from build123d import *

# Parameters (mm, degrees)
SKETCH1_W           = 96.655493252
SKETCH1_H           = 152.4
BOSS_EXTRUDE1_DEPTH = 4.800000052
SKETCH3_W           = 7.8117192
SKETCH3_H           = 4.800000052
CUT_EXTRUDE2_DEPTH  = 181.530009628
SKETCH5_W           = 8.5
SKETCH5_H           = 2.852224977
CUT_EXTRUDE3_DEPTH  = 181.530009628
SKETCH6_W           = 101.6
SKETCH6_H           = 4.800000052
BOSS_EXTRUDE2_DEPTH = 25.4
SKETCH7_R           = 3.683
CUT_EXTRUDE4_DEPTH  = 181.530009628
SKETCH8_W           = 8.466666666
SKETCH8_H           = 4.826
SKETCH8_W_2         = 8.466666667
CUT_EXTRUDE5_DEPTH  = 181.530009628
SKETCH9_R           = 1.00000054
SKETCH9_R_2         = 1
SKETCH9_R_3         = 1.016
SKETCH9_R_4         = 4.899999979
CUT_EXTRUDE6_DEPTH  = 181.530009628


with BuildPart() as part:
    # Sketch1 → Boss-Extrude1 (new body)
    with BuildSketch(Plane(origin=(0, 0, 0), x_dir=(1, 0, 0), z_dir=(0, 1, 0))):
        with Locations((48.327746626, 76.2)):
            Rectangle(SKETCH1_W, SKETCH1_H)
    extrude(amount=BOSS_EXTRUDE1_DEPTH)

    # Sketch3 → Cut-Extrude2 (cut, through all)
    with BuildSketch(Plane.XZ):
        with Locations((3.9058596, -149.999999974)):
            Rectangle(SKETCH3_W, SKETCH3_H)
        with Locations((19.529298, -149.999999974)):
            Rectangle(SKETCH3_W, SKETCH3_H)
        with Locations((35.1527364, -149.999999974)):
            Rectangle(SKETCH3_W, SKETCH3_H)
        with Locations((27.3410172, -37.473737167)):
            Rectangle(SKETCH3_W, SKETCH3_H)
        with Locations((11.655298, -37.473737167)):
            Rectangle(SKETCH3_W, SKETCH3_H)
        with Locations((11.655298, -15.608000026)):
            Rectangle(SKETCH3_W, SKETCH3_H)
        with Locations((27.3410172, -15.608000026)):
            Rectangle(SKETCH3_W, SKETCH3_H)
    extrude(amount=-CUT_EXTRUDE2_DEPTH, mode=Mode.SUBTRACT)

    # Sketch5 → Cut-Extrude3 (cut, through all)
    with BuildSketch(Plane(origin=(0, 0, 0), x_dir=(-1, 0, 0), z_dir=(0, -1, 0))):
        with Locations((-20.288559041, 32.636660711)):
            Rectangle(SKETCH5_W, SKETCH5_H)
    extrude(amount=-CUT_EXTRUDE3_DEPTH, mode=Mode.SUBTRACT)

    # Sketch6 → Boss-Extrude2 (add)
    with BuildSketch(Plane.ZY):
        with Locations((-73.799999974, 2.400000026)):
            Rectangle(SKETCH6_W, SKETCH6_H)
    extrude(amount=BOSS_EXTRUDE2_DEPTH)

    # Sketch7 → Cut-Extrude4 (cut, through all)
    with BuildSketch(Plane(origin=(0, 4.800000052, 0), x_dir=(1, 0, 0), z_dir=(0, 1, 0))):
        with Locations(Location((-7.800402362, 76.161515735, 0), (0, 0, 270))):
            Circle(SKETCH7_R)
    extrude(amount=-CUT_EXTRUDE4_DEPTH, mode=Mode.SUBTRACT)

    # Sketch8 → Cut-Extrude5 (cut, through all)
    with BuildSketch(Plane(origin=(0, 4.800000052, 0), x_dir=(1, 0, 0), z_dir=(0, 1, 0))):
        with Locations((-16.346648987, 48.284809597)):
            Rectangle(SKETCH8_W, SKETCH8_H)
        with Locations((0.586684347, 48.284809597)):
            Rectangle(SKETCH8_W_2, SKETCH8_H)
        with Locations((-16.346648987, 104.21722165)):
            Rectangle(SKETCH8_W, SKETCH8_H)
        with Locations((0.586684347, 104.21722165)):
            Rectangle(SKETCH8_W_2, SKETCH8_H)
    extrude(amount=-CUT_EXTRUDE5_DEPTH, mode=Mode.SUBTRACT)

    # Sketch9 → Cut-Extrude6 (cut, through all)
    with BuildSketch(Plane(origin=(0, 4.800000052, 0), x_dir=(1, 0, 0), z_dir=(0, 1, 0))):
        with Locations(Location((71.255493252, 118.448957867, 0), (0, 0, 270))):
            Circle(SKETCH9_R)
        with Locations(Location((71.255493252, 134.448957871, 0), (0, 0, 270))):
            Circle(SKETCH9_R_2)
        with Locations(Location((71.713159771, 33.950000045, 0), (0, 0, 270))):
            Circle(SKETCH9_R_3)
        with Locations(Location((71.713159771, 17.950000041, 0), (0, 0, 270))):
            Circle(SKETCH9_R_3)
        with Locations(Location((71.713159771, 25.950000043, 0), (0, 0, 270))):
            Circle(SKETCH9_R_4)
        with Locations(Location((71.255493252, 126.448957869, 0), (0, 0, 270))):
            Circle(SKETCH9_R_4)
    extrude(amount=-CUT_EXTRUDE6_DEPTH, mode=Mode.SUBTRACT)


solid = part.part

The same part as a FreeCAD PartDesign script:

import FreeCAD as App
import Part
import Sketcher
from FreeCAD import Vector
Q = App.Units.Quantity

doc = App.newDocument("Part")
body = doc.addObject("PartDesign::Body", "Body")

sketch1 = body.newObject("Sketcher::SketchObject", "Sketch")
sketch1.AttachmentSupport = (doc.getObject("XZ_Plane"), [""])
sketch1.MapMode = "FlatFace"
sketch1.addGeometry([
    Part.LineSegment(Vector(0, -152.4, 0), Vector(0, 0, 0)),
    Part.LineSegment(Vector(0, 0, 0), Vector(96.655493, 0, 0)),
    Part.LineSegment(Vector(96.655493, 0, 0), Vector(96.655493, -152.4, 0)),
    Part.LineSegment(Vector(96.655493, -152.4, 0), Vector(0, -152.4, 0)),
], False)
sketch1.addConstraint([
    Sketcher.Constraint("Coincident", 0, 2, 1, 1),
    Sketcher.Constraint("Coincident", 1, 2, 2, 1),
    Sketcher.Constraint("Coincident", 2, 2, 3, 1),
    Sketcher.Constraint("Coincident", 3, 2, 0, 1),
    Sketcher.Constraint("Vertical", 0),
    Sketcher.Constraint("Horizontal", 1),
    Sketcher.Constraint("Vertical", 2),
    Sketcher.Constraint("Horizontal", 3),
    Sketcher.Constraint("Coincident", 0, 2, -1, 1),
    Sketcher.Constraint("DistanceY", 0, 1, 0, 2, Q("6 in")),
    Sketcher.Constraint("DistanceX", 1, 1, 1, 2, Q("96.655493 mm")),
])
pad1 = body.newObject("PartDesign::Pad", "Pad")
pad1.Profile = sketch1
pad1.Length = 4.8
pad1.Reversed = True

sketch2 = body.newObject("Sketcher::SketchObject", "Sketch001")
sketch2.AttachmentSupport = (doc.getObject("XZ_Plane"), [""])
sketch2.MapMode = "FlatFace"
sketch2.addGeometry([
    Part.LineSegment(Vector(0, -147.6, 0), Vector(0, -152.4, 0)),
    Part.LineSegment(Vector(0, -152.4, 0), Vector(7.811719, -152.4, 0)),
    Part.LineSegment(Vector(7.811719, -152.4, 0), Vector(7.811719, -147.6, 0)),
    Part.LineSegment(Vector(7.811719, -147.6, 0), Vector(0, -147.6, 0)),
    Part.LineSegment(Vector(15.623438, -147.6, 0), Vector(15.623438, -152.4, 0)),
    Part.LineSegment(Vector(15.623438, -152.4, 0), Vector(23.435158, -152.4, 0)),
    Part.LineSegment(Vector(23.435158, -152.4, 0), Vector(23.435158, -147.6, 0)),
    Part.LineSegment(Vector(23.435158, -147.6, 0), Vector(15.623438, -147.6, 0)),
    Part.LineSegment(Vector(31.246877, -147.6, 0), Vector(31.246877, -152.4, 0)),
    Part.LineSegment(Vector(31.246877, -152.4, 0), Vector(39.058596, -152.4, 0)),
    Part.LineSegment(Vector(39.058596, -152.4, 0), Vector(39.058596, -147.6, 0)),
    Part.LineSegment(Vector(39.058596, -147.6, 0), Vector(31.246877, -147.6, 0)),
    Part.LineSegment(Vector(23.435158, -35.073737, 0), Vector(23.435158, -39.873737, 0)),
    Part.LineSegment(Vector(23.435158, -39.873737, 0), Vector(31.246877, -39.873737, 0)),
    Part.LineSegment(Vector(31.246877, -39.873737, 0), Vector(31.246877, -35.073737, 0)),
    Part.LineSegment(Vector(31.246877, -35.073737, 0), Vector(23.435158, -35.073737, 0)),
    Part.LineSegment(Vector(7.749438, -35.073737, 0), Vector(7.749438, -39.873737, 0)),
    Part.LineSegment(Vector(7.749438, -39.873737, 0), Vector(15.561158, -39.873737, 0)),
    Part.LineSegment(Vector(15.561158, -39.873737, 0), Vector(15.561158, -35.073737, 0)),
    Part.LineSegment(Vector(15.561158, -35.073737, 0), Vector(7.749438, -35.073737, 0)),
    Part.LineSegment(Vector(7.749438, -13.208, 0), Vector(7.749438, -18.008, 0)),
    Part.LineSegment(Vector(7.749438, -18.008, 0), Vector(15.561158, -18.008, 0)),
    Part.LineSegment(Vector(15.561158, -18.008, 0), Vector(15.561158, -13.208, 0)),
    Part.LineSegment(Vector(15.561158, -13.208, 0), Vector(7.749438, -13.208, 0)),
    Part.LineSegment(Vector(23.435158, -13.208, 0), Vector(23.435158, -18.008, 0)),
    Part.LineSegment(Vector(23.435158, -18.008, 0), Vector(31.246877, -18.008, 0)),
    Part.LineSegment(Vector(31.246877, -18.008, 0), Vector(31.246877, -13.208, 0)),
    Part.LineSegment(Vector(31.246877, -13.208, 0), Vector(23.435158, -13.208, 0)),
], False)
sketch2.addConstraint([
    Sketcher.Constraint("Coincident", 0, 2, 1, 1),
    Sketcher.Constraint("Coincident", 1, 2, 2, 1),
    Sketcher.Constraint("Coincident", 2, 2, 3, 1),
    Sketcher.Constraint("Coincident", 3, 2, 0, 1),
    Sketcher.Constraint("Coincident", 4, 2, 5, 1),
    Sketcher.Constraint("Coincident", 5, 2, 6, 1),
    Sketcher.Constraint("Coincident", 6, 2, 7, 1),
    Sketcher.Constraint("Coincident", 7, 2, 4, 1),
    Sketcher.Constraint("Coincident", 8, 2, 9, 1),
    Sketcher.Constraint("Coincident", 9, 2, 10, 1),
    Sketcher.Constraint("Coincident", 10, 2, 11, 1),
    Sketcher.Constraint("Coincident", 11, 2, 8, 1),
    Sketcher.Constraint("Coincident", 12, 2, 13, 1),
    Sketcher.Constraint("Coincident", 13, 2, 14, 1),
    Sketcher.Constraint("Coincident", 14, 2, 15, 1),
    Sketcher.Constraint("Coincident", 15, 2, 12, 1),
    Sketcher.Constraint("Coincident", 16, 2, 17, 1),
    Sketcher.Constraint("Coincident", 17, 2, 18, 1),
    Sketcher.Constraint("Coincident", 18, 2, 19, 1),
    Sketcher.Constraint("Coincident", 19, 2, 16, 1),
    Sketcher.Constraint("Coincident", 20, 2, 21, 1),
    Sketcher.Constraint("Coincident", 21, 2, 22, 1),
    Sketcher.Constraint("Coincident", 22, 2, 23, 1),
    Sketcher.Constraint("Coincident", 23, 2, 20, 1),
    Sketcher.Constraint("Coincident", 24, 2, 25, 1),
    Sketcher.Constraint("Coincident", 25, 2, 26, 1),
    Sketcher.Constraint("Coincident", 26, 2, 27, 1),
    Sketcher.Constraint("Coincident", 27, 2, 24, 1),
    Sketcher.Constraint("Vertical", 0),
    Sketcher.Constraint("Horizontal", 1),
    Sketcher.Constraint("Vertical", 2),
    Sketcher.Constraint("Horizontal", 3),
    Sketcher.Constraint("Vertical", 4),
    Sketcher.Constraint("Horizontal", 5),
    Sketcher.Constraint("Vertical", 6),
    Sketcher.Constraint("Horizontal", 7),
    Sketcher.Constraint("Vertical", 8),
    Sketcher.Constraint("Horizontal", 9),
    Sketcher.Constraint("Vertical", 10),
    Sketcher.Constraint("Horizontal", 11),
    Sketcher.Constraint("Vertical", 12),
    Sketcher.Constraint("Horizontal", 13),
    Sketcher.Constraint("Vertical", 14),
    Sketcher.Constraint("Horizontal", 15),
    Sketcher.Constraint("Vertical", 16),
    Sketcher.Constraint("Horizontal", 17),
    Sketcher.Constraint("Vertical", 18),
    Sketcher.Constraint("Horizontal", 19),
    Sketcher.Constraint("Vertical", 20),
    Sketcher.Constraint("Horizontal", 21),
    Sketcher.Constraint("Vertical", 22),
    Sketcher.Constraint("Horizontal", 23),
    Sketcher.Constraint("Vertical", 24),
    Sketcher.Constraint("Horizontal", 25),
    Sketcher.Constraint("Vertical", 26),
    Sketcher.Constraint("Horizontal", 27),
    Sketcher.Constraint("PointOnObject", 0, 2, -2),
    Sketcher.Constraint("Horizontal", 1, 2, 4, 2),
    Sketcher.Constraint("Horizontal", 3, 2, 6, 2),
    Sketcher.Constraint("Horizontal", 5, 2, 8, 2),
    Sketcher.Constraint("Horizontal", 7, 2, 10, 2),
    Sketcher.Constraint("Horizontal", 13, 2, 16, 2),
    Sketcher.Constraint("Horizontal", 15, 2, 18, 2),
    Sketcher.Constraint("Horizontal", 21, 2, 24, 2),
    Sketcher.Constraint("Horizontal", 23, 2, 26, 2),
    Sketcher.Constraint("Vertical", 6, 2, 12, 2),
    Sketcher.Constraint("Vertical", 11, 2, 13, 2),
    Sketcher.Constraint("Vertical", 19, 2, 20, 2),
    Sketcher.Constraint("Vertical", 18, 2, 21, 2),
    Sketcher.Constraint("Vertical", 15, 2, 24, 2),
    Sketcher.Constraint("Vertical", 14, 2, 25, 2),
    Sketcher.Constraint("Equal", 3, 5),
    Sketcher.Constraint("Equal", 7, 9),
    Sketcher.Constraint("Equal", 11, 13),
    Sketcher.Constraint("Equal", 15, 17),
    Sketcher.Constraint("Equal", 10, 12),
    Sketcher.Constraint("Equal", 18, 20),
    Sketcher.Constraint("DistanceY", 0, 2, -1, 1, Q("6 in")),
    Sketcher.Constraint("DistanceY", 22, 2, -1, 1, Q("0.52 in")),
    Sketcher.Constraint("DistanceX", 17, 2, 12, 2, Q("0.31 in")),
    Sketcher.Constraint("DistanceY", 0, 2, 0, 1, Q("4.8 mm")),
    Sketcher.Constraint("DistanceX", 1, 1, 1, 2, Q("7.811719 mm")),
    Sketcher.Constraint("DistanceX", -1, 1, 4, 2, Q("15.623438 mm")),
    Sketcher.Constraint("DistanceY", 12, 2, -1, 1, Q("39.873737 mm")),
])
pocket1 = body.newObject("PartDesign::Pocket", "Pocket")
pocket1.Profile = sketch2
pocket1.Type = "ThroughAll"

sketch3 = body.newObject("Sketcher::SketchObject", "Sketch002")
sketch3.AttachmentSupport = (doc.getObject("XZ_Plane"), [""])
sketch3.MapMode = "FlatFace"
sketch3.addGeometry([
    Part.LineSegment(Vector(24.538559, -34.062773, 0), Vector(24.538559, -31.210548, 0)),
    Part.LineSegment(Vector(24.538559, -31.210548, 0), Vector(16.038559, -31.210548, 0)),
    Part.LineSegment(Vector(16.038559, -31.210548, 0), Vector(16.038559, -34.062773, 0)),
    Part.LineSegment(Vector(16.038559, -34.062773, 0), Vector(24.538559, -34.062773, 0)),
], False)
sketch3.addConstraint([
    Sketcher.Constraint("Coincident", 0, 2, 1, 1),
    Sketcher.Constraint("Coincident", 1, 2, 2, 1),
    Sketcher.Constraint("Coincident", 2, 2, 3, 1),
    Sketcher.Constraint("Coincident", 3, 2, 0, 1),
    Sketcher.Constraint("Vertical", 0),
    Sketcher.Constraint("Horizontal", 1),
    Sketcher.Constraint("Vertical", 2),
    Sketcher.Constraint("Horizontal", 3),
    Sketcher.Constraint("DistanceX", 1, 2, 1, 1, Q("8.5 mm")),
    Sketcher.Constraint("DistanceY", 0, 1, 0, 2, Q("2.852225 mm")),
    Sketcher.Constraint("DistanceX", -1, 1, 0, 2, Q("24.538559 mm")),
    Sketcher.Constraint("DistanceY", 0, 2, -1, 1, Q("31.210548 mm")),
])
pocket2 = body.newObject("PartDesign::Pocket", "Pocket001")
pocket2.Profile = sketch3
pocket2.Type = "ThroughAll"

sketch4 = body.newObject("Sketcher::SketchObject", "Sketch003")
sketch4.AttachmentSupport = (doc.getObject("YZ_Plane"), [""])
sketch4.MapMode = "FlatFace"
sketch4.addGeometry([
    Part.LineSegment(Vector(4.8, -124.6, 0), Vector(0, -124.6, 0)),
    Part.LineSegment(Vector(0, -124.6, 0), Vector(0, -23, 0)),
    Part.LineSegment(Vector(0, -23, 0), Vector(4.8, -23, 0)),
    Part.LineSegment(Vector(4.8, -23, 0), Vector(4.8, -124.6, 0)),
], False)
sketch4.addConstraint([
    Sketcher.Constraint("Coincident", 0, 2, 1, 1),
    Sketcher.Constraint("Coincident", 1, 2, 2, 1),
    Sketcher.Constraint("Coincident", 2, 2, 3, 1),
    Sketcher.Constraint("Coincident", 3, 2, 0, 1),
    Sketcher.Constraint("Horizontal", 0),
    Sketcher.Constraint("Vertical", 1),
    Sketcher.Constraint("Horizontal", 2),
    Sketcher.Constraint("Vertical", 3),
    Sketcher.Constraint("PointOnObject", 0, 2, -2),
    Sketcher.Constraint("DistanceY", 1, 1, 1, 2, Q("4 in")),
    Sketcher.Constraint("DistanceX", 0, 2, 0, 1, Q("4.8 mm")),
    Sketcher.Constraint("DistanceY", 0, 2, -1, 1, Q("124.6 mm")),
])
pad2 = body.newObject("PartDesign::Pad", "Pad001")
pad2.Profile = sketch4
pad2.Length = Q("1 in")
pad2.Reversed = True

sketch5 = body.newObject("Sketcher::SketchObject", "Sketch004")
sketch5.AttachmentSupport = (doc.getObject("XZ_Plane"), [""])
sketch5.MapMode = "FlatFace"
sketch5.AttachmentOffset = App.Placement(Vector(0, 0, -4.8), App.Rotation())
sketch5.addGeometry(Part.Circle(Vector(-7.800402, -76.161516, 0), Vector(0, 0, 1), 3.683), False)
sketch5.addConstraint([
    Sketcher.Constraint("Diameter", 0, Q("0.29 in")),
    Sketcher.Constraint("DistanceX", 0, 3, -1, 1, Q("7.800402 mm")),
    Sketcher.Constraint("DistanceY", 0, 3, -1, 1, Q("76.161516 mm")),
])
pocket3 = body.newObject("PartDesign::Pocket", "Pocket002")
pocket3.Profile = sketch5
pocket3.Type = "ThroughAll"
pocket3.Reversed = True

sketch6 = body.newObject("Sketcher::SketchObject", "Sketch005")
sketch6.AttachmentSupport = (doc.getObject("XZ_Plane"), [""])
sketch6.MapMode = "FlatFace"
sketch6.AttachmentOffset = App.Placement(Vector(0, 0, -4.8), App.Rotation())
sketch6.addGeometry([
    Part.LineSegment(Vector(-20.579982, -50.69781, 0), Vector(-20.579982, -45.87181, 0)),
    Part.LineSegment(Vector(-20.579982, -45.87181, 0), Vector(-12.113316, -45.87181, 0)),
    Part.LineSegment(Vector(-12.113316, -45.87181, 0), Vector(-12.113316, -50.69781, 0)),
    Part.LineSegment(Vector(-12.113316, -50.69781, 0), Vector(-20.579982, -50.69781, 0)),
    Part.LineSegment(Vector(-3.646649, -50.69781, 0), Vector(-3.646649, -45.87181, 0)),
    Part.LineSegment(Vector(-3.646649, -45.87181, 0), Vector(4.820018, -45.87181, 0)),
    Part.LineSegment(Vector(4.820018, -45.87181, 0), Vector(4.820018, -50.69781, 0)),
    Part.LineSegment(Vector(4.820018, -50.69781, 0), Vector(-3.646649, -50.69781, 0)),
    Part.LineSegment(Vector(-20.579982, -106.630222, 0), Vector(-20.579982, -101.804222, 0)),
    Part.LineSegment(Vector(-20.579982, -101.804222, 0), Vector(-12.113316, -101.804222, 0)),
    Part.LineSegment(Vector(-12.113316, -101.804222, 0), Vector(-12.113316, -106.630222, 0)),
    Part.LineSegment(Vector(-12.113316, -106.630222, 0), Vector(-20.579982, -106.630222, 0)),
    Part.LineSegment(Vector(-3.646649, -106.630222, 0), Vector(-3.646649, -101.804222, 0)),
    Part.LineSegment(Vector(-3.646649, -101.804222, 0), Vector(4.820018, -101.804222, 0)),
    Part.LineSegment(Vector(4.820018, -101.804222, 0), Vector(4.820018, -106.630222, 0)),
    Part.LineSegment(Vector(4.820018, -106.630222, 0), Vector(-3.646649, -106.630222, 0)),
], False)
sketch6.addConstraint([
    Sketcher.Constraint("Coincident", 0, 2, 1, 1),
    Sketcher.Constraint("Coincident", 1, 2, 2, 1),
    Sketcher.Constraint("Coincident", 2, 2, 3, 1),
    Sketcher.Constraint("Coincident", 3, 2, 0, 1),
    Sketcher.Constraint("Coincident", 4, 2, 5, 1),
    Sketcher.Constraint("Coincident", 5, 2, 6, 1),
    Sketcher.Constraint("Coincident", 6, 2, 7, 1),
    Sketcher.Constraint("Coincident", 7, 2, 4, 1),
    Sketcher.Constraint("Coincident", 8, 2, 9, 1),
    Sketcher.Constraint("Coincident", 9, 2, 10, 1),
    Sketcher.Constraint("Coincident", 10, 2, 11, 1),
    Sketcher.Constraint("Coincident", 11, 2, 8, 1),
    Sketcher.Constraint("Coincident", 12, 2, 13, 1),
    Sketcher.Constraint("Coincident", 13, 2, 14, 1),
    Sketcher.Constraint("Coincident", 14, 2, 15, 1),
    Sketcher.Constraint("Coincident", 15, 2, 12, 1),
    Sketcher.Constraint("Vertical", 0),
    Sketcher.Constraint("Horizontal", 1),
    Sketcher.Constraint("Vertical", 2),
    Sketcher.Constraint("Horizontal", 3),
    Sketcher.Constraint("Vertical", 4),
    Sketcher.Constraint("Horizontal", 5),
    Sketcher.Constraint("Vertical", 6),
    Sketcher.Constraint("Horizontal", 7),
    Sketcher.Constraint("Vertical", 8),
    Sketcher.Constraint("Horizontal", 9),
    Sketcher.Constraint("Vertical", 10),
    Sketcher.Constraint("Horizontal", 11),
    Sketcher.Constraint("Vertical", 12),
    Sketcher.Constraint("Horizontal", 13),
    Sketcher.Constraint("Vertical", 14),
    Sketcher.Constraint("Horizontal", 15),
    Sketcher.Constraint("Horizontal", 1, 2, 4, 2),
    Sketcher.Constraint("Horizontal", 3, 2, 6, 2),
    Sketcher.Constraint("Horizontal", 9, 2, 12, 2),
    Sketcher.Constraint("Horizontal", 11, 2, 14, 2),
    Sketcher.Constraint("Vertical", 3, 2, 8, 2),
    Sketcher.Constraint("Vertical", 2, 2, 9, 2),
    Sketcher.Constraint("Vertical", 7, 2, 12, 2),
    Sketcher.Constraint("Vertical", 6, 2, 13, 2),
    Sketcher.Constraint("Equal", 3, 5),
    Sketcher.Constraint("Equal", 6, 8),
    Sketcher.Constraint("DistanceX", 0, 2, 5, 2, Q("1 in")),
    Sketcher.Constraint("DistanceY", 0, 1, 0, 2, Q("0.19 in")),
    Sketcher.Constraint("DistanceX", 1, 1, 1, 2, Q("8.466667 mm")),
    Sketcher.Constraint("DistanceY", 0, 2, -1, 1, Q("45.87181 mm")),
    Sketcher.Constraint("DistanceX", 4, 2, -1, 1, Q("3.646649 mm")),
    Sketcher.Constraint("DistanceY", 8, 2, -1, 1, Q("101.804222 mm")),
])
pocket4 = body.newObject("PartDesign::Pocket", "Pocket003")
pocket4.Profile = sketch6
pocket4.Type = "ThroughAll"
pocket4.Reversed = True

sketch7 = body.newObject("Sketcher::SketchObject", "Sketch006")
sketch7.AttachmentSupport = (doc.getObject("XZ_Plane"), [""])
sketch7.MapMode = "FlatFace"
sketch7.AttachmentOffset = App.Placement(Vector(0, 0, -4.8), App.Rotation())
sketch7.addGeometry([
    Part.Circle(Vector(71.255493, -118.448958, 0), Vector(0, 0, 1), 1.000001),
    Part.Circle(Vector(71.255493, -134.448958, 0), Vector(0, 0, 1), 1),
    Part.Circle(Vector(71.71316, -33.95, 0), Vector(0, 0, 1), 1.016),
    Part.Circle(Vector(71.71316, -17.95, 0), Vector(0, 0, 1), 1.016),
    Part.Circle(Vector(71.71316, -25.95, 0), Vector(0, 0, 1), 4.9),
    Part.Circle(Vector(71.255493, -126.448958, 0), Vector(0, 0, 1), 4.9),
], False)
sketch7.addConstraint([
    Sketcher.Constraint("Equal", 0, 1),
    Sketcher.Constraint("Equal", 2, 3),
    Sketcher.Constraint("Equal", 4, 5),
    Sketcher.Constraint("Vertical", 0, 3, 1, 3),
    Sketcher.Constraint("Vertical", 2, 3, 3, 3),
    Sketcher.Constraint("Vertical", 3, 3, 4, 3),
    Sketcher.Constraint("Vertical", 1, 3, 5, 3),
    Sketcher.Constraint("Diameter", 2, Q("0.08 in")),
    Sketcher.Constraint("Diameter", 0, Q("2.000001 mm")),
    Sketcher.Constraint("Diameter", 4, Q("9.8 mm")),
    Sketcher.Constraint("DistanceY", 2, 3, -1, 1, Q("33.95 mm")),
    Sketcher.Constraint("DistanceY", 3, 3, -1, 1, Q("17.95 mm")),
    Sketcher.Constraint("DistanceY", 4, 3, -1, 1, Q("25.95 mm")),
    Sketcher.Constraint("DistanceY", 1, 3, 0, 3, Q("16 mm")),
    Sketcher.Constraint("DistanceY", 5, 3, 0, 3, Q("8 mm")),
    Sketcher.Constraint("DistanceX", -1, 1, 2, 3, Q("71.71316 mm")),
    Sketcher.Constraint("DistanceX", -1, 1, 0, 3, Q("71.255493 mm")),
    Sketcher.Constraint("DistanceY", 0, 3, -1, 1, Q("118.448958 mm")),
])
pocket5 = body.newObject("PartDesign::Pocket", "Pocket004")
pocket5.Profile = sketch7
pocket5.Type = "ThroughAll"
pocket5.Reversed = True

doc.recompute()
